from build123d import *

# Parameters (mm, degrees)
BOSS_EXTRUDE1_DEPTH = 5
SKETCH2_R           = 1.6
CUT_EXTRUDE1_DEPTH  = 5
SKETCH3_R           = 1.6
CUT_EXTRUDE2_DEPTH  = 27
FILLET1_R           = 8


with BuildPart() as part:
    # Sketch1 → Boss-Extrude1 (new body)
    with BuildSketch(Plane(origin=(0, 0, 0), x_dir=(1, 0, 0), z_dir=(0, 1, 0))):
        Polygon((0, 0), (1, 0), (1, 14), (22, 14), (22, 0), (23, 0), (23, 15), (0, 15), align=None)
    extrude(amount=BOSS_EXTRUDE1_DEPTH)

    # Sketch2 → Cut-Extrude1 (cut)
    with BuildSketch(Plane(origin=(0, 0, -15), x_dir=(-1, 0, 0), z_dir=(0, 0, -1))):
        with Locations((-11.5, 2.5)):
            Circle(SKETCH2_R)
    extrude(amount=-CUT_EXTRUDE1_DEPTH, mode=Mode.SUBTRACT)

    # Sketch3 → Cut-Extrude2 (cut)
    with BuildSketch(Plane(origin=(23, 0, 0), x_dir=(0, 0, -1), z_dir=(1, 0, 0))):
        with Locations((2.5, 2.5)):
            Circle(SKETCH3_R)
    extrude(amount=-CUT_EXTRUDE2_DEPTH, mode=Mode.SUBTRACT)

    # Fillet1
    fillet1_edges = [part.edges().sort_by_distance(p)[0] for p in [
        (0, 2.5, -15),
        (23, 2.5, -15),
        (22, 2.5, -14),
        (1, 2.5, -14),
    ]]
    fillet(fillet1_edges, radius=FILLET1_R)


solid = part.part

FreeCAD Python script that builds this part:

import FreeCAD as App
import Part
import Sketcher

V = App.Vector
Q = App.Units.Quantity


def edges_at(feature, points):
    """Names of the edges that pass closest to the given points."""
    edges = feature.Shape.Edges
    near = lambda p: min(range(len(edges)), key=lambda i: edges[i].distToShape(Part.Vertex(*p))[0])
    return sorted({f"Edge{near(p) + 1}" for p in points})

doc = App.newDocument("Part")
body = doc.addObject("PartDesign::Body", "Body")

# Sketch on XZ plane
sketch1 = body.newObject("Sketcher::SketchObject", "Sketch")
sketch1.AttachmentSupport = (doc.getObject("XZ_Plane"), [""])
sketch1.MapMode = "FlatFace"
sketch1.addGeometry([
    Part.LineSegment(V(0, 0, 0), V(1, 0, 0)),  # 0
    Part.LineSegment(V(1, 0, 0), V(1, -14, 0)),  # 1
    Part.LineSegment(V(1, -14, 0), V(22, -14, 0)),  # 2
    Part.LineSegment(V(22, -14, 0), V(22, 0, 0)),  # 3
    Part.LineSegment(V(22, 0, 0), V(23, 0, 0)),  # 4
    Part.LineSegment(V(23, 0, 0), V(23, -15, 0)),  # 5
    Part.LineSegment(V(23, -15, 0), V(0, -15, 0)),  # 6
    Part.LineSegment(V(0, -15, 0), V(0, 0, 0)),  # 7
], False)
sketch1.addConstraint([
    Sketcher.Constraint("Coincident", 0, 2, 1, 1),
    Sketcher.Constraint("Coincident", 1, 2, 2, 1),
    Sketcher.Constraint("Coincident", 2, 2, 3, 1),
    Sketcher.Constraint("Coincident", 3, 2, 4, 1),
    Sketcher.Constraint("Coincident", 4, 2, 5, 1),
    Sketcher.Constraint("Coincident", 5, 2, 6, 1),
    Sketcher.Constraint("Coincident", 6, 2, 7, 1),
    Sketcher.Constraint("Coincident", 7, 2, 0, 1),
    Sketcher.Constraint("Horizontal", 0),
    Sketcher.Constraint("Vertical", 1),
    Sketcher.Constraint("Horizontal", 2),
    Sketcher.Constraint("Vertical", 3),
    Sketcher.Constraint("Horizontal", 4),
    Sketcher.Constraint("Vertical", 5),
    Sketcher.Constraint("Horizontal", 6),
    Sketcher.Constraint("Vertical", 7),
    Sketcher.Constraint("Coincident", 7, 2, -1, 1),
    Sketcher.Constraint("PointOnObject", 3, 2, -1),
    Sketcher.Constraint("Equal", 0, 4),
    Sketcher.Constraint("DistanceX", 0, 1, 0, 2, Q("1 mm")),
    Sketcher.Constraint("DistanceX", 2, 1, 2, 2, Q("21 mm")),
    Sketcher.Constraint("DistanceY", 1, 2, 1, 1, Q("14 mm")),
    Sketcher.Constraint("DistanceY", 5, 2, 5, 1, Q("15 mm")),
])
pad1 = body.newObject("PartDesign::Pad", "Pad")
pad1.Profile = sketch1
pad1.Length = 5
pad1.Reversed = True

# Sketch on XY plane
sketch2 = body.newObject("Sketcher::SketchObject", "Sketch001")
sketch2.AttachmentSupport = (doc.getObject("XY_Plane"), [""])
sketch2.MapMode = "FlatFace"
sketch2.AttachmentOffset = App.Placement(V(0, 0, -15), App.Rotation())
sketch2.addGeometry(Part.Circle(V(11.5, 2.5, 0), V(0, 0, 1), 1.6), False)
sketch2.addConstraint([
    Sketcher.Constraint("Diameter", 0, Q("3.2 mm")),
    Sketcher.Constraint("DistanceX", -1, 1, 0, 3, Q("11.5 mm")),
    Sketcher.Constraint("DistanceY", -1, 1, 0, 3, Q("2.5 mm")),
])
pocket1 = body.newObject("PartDesign::Pocket", "Pocket")
pocket1.Profile = sketch2
pocket1.Length = 5
pocket1.Reversed = True

# Sketch on YZ plane
sketch3 = body.newObject("Sketcher::SketchObject", "Sketch002")
sketch3.AttachmentSupport = (doc.getObject("YZ_Plane"), [""])
sketch3.MapMode = "FlatFace"
sketch3.AttachmentOffset = App.Placement(V(0, 0, 23), App.Rotation())
sketch3.addGeometry(Part.Circle(V(2.5, -2.5, 0), V(0, 0, 1), 1.6), False)
sketch3.addConstraint([
    Sketcher.Constraint("Diameter", 0, Q("3.2 mm")),
    Sketcher.Constraint("DistanceX", -1, 1, 0, 3, Q("2.5 mm")),
    Sketcher.Constraint("DistanceY", 0, 3, -1, 1, Q("2.5 mm")),
])
pocket2 = body.newObject("PartDesign::Pocket", "Pocket001")
pocket2.Profile = sketch3
pocket2.Length = 27
doc.recompute()

fillet = body.newObject("PartDesign::Fillet", "Fillet")
fillet.Base = (pocket2, edges_at(pocket2, [
    (0, 2.5, -15),
    (23, 2.5, -15),
    (22, 2.5, -14),
    (1, 2.5, -14),
]))
fillet.Radius = 8

doc.recompute()
